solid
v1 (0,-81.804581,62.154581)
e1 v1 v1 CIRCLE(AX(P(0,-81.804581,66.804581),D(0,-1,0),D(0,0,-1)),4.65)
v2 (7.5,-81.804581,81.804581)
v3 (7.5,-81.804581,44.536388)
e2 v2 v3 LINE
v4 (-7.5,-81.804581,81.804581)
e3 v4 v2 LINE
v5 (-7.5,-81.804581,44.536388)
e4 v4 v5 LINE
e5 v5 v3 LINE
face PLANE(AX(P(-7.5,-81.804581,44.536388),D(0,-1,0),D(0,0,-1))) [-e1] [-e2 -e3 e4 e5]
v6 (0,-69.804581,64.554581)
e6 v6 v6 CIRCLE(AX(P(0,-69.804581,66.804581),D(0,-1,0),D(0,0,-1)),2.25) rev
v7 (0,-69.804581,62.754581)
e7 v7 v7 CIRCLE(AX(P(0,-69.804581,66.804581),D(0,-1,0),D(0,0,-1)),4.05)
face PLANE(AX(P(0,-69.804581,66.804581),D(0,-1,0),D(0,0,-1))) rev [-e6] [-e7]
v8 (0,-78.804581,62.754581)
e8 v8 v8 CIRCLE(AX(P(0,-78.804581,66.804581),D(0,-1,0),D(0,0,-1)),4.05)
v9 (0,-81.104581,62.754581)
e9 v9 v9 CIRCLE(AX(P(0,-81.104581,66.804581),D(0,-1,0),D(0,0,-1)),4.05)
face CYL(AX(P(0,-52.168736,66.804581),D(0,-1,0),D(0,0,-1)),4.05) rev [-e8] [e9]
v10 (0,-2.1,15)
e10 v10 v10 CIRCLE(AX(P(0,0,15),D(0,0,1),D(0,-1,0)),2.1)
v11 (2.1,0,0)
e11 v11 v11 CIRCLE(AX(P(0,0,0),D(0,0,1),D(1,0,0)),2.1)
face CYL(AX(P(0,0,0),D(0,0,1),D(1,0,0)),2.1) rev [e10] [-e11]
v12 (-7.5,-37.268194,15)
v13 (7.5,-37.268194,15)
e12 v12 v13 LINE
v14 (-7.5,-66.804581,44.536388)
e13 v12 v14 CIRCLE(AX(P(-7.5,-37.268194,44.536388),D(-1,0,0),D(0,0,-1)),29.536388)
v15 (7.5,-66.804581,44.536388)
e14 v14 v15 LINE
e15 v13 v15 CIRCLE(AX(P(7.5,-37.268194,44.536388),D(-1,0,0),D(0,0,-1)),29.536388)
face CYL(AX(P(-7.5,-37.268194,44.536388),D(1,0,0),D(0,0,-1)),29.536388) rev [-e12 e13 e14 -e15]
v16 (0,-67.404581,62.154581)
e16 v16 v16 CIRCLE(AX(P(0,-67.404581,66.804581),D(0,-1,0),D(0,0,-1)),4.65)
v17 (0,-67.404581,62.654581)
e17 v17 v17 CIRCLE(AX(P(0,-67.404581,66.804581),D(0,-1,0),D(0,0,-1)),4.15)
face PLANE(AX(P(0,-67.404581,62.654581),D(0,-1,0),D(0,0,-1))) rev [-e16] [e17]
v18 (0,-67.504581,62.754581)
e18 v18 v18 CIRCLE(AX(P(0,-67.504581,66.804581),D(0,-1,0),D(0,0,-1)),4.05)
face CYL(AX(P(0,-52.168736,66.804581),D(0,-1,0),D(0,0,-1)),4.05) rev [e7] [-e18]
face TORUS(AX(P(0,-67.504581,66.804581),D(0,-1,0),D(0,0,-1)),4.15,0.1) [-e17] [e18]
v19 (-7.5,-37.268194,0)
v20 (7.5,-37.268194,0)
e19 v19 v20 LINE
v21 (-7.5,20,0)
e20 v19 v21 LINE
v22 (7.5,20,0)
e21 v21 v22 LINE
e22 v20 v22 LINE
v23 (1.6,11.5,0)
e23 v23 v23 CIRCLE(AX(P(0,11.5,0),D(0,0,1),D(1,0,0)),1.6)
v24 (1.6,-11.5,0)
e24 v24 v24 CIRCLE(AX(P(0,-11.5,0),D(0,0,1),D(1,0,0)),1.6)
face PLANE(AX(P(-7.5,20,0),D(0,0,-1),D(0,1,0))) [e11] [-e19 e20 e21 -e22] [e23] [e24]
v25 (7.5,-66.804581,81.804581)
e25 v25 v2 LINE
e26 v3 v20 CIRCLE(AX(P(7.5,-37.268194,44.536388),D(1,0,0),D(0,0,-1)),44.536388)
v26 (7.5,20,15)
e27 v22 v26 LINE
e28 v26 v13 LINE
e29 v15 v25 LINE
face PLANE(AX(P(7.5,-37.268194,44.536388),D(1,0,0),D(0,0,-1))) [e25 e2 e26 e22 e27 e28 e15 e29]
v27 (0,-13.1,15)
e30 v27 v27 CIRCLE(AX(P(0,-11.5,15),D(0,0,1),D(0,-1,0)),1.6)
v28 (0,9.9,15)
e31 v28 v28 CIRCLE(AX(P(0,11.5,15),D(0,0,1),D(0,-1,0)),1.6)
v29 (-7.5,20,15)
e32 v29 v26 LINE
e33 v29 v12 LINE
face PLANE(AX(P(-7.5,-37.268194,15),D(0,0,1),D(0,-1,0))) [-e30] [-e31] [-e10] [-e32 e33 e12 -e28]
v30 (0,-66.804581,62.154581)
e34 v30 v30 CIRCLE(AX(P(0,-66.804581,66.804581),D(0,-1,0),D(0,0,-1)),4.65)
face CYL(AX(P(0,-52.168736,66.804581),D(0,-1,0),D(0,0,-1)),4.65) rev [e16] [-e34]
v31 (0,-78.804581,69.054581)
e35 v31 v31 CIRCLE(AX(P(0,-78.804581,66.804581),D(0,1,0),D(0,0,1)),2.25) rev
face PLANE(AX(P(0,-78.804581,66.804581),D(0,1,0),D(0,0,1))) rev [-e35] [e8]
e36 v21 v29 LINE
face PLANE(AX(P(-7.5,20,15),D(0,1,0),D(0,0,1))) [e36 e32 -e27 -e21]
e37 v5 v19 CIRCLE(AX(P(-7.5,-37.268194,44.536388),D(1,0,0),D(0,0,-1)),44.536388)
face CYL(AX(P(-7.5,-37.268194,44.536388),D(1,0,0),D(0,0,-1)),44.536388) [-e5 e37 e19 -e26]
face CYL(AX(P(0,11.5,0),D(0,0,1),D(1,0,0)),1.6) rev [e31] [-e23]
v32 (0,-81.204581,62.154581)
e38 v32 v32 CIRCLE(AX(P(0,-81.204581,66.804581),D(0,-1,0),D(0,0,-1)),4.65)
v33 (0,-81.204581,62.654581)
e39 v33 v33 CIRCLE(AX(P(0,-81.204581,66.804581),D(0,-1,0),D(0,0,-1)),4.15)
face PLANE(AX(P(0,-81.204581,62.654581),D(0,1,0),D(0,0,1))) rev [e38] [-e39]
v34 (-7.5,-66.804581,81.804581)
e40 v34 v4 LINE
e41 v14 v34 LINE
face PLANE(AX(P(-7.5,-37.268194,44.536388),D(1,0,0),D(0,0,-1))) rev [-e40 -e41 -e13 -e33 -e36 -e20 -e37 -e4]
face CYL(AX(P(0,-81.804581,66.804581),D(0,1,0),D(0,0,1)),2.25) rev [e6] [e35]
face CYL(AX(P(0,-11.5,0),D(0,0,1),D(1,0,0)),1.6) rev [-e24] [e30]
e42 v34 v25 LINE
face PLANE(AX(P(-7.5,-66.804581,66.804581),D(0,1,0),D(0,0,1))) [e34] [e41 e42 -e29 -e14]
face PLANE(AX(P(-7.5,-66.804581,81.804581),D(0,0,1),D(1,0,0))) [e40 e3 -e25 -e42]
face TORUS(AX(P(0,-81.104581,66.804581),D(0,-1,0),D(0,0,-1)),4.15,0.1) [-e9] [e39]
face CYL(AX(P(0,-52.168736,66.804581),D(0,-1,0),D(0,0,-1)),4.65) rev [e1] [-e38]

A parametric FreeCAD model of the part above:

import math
import FreeCAD as App
import Part
import Sketcher
from FreeCAD import Vector

doc = App.newDocument("Part")
body = doc.addObject("PartDesign::Body", "Body")

# Sketch on YZ plane
sketch1 = body.newObject("Sketcher::SketchObject", "Sketch")
sketch1.AttachmentSupport = (doc.getObject("YZ_Plane"), [""])
sketch1.MapMode = "FlatFace"
sketch1.addGeometry([
    Part.LineSegment(Vector(20, 0, 0), Vector(20, 15, 0)),  # 0
    Part.LineSegment(Vector(20, 15, 0), Vector(-37, 15, 0)),  # 1
    Part.ArcOfCircle(Part.Circle(Vector(-37, 45, 0), Vector(0, 0, 1), 30), math.radians(180), math.radians(270)),  # 2
    Part.LineSegment(Vector(-67, 45, 0), Vector(-67, 82, 0)),  # 3
    Part.LineSegment(Vector(-67, 82, 0), Vector(-82, 82, 0)),  # 4
    Part.LineSegment(Vector(-82, 82, 0), Vector(-82, 45, 0)),  # 5
    Part.ArcOfCircle(Part.Circle(Vector(-37, 45, 0), Vector(0, 0, 1), 45), math.radians(180), math.radians(270)),  # 6
    Part.LineSegment(Vector(-37, 0, 0), Vector(20, 0, 0)),  # 7
], False)
sketch1.addConstraint([
    Sketcher.Constraint("Coincident", 0, 2, 1, 1),
    Sketcher.Constraint("Tangent", 1, 2, 2, 2),
    Sketcher.Constraint("Tangent", 2, 1, 3, 1),
    Sketcher.Constraint("Coincident", 3, 2, 4, 1),
    Sketcher.Constraint("Coincident", 4, 2, 5, 1),
    Sketcher.Constraint("Tangent", 5, 2, 6, 1),
    Sketcher.Constraint("Tangent", 6, 2, 7, 1),
    Sketcher.Constraint("Coincident", 7, 2, 0, 1),
    Sketcher.Constraint("Vertical", 0),
    Sketcher.Constraint("Horizontal", 1),
    Sketcher.Constraint("Vertical", 3),
    Sketcher.Constraint("Horizontal", 4),
    Sketcher.Constraint("Vertical", 5),
    Sketcher.Constraint("Horizontal", 7),
    Sketcher.Constraint("Coincident", 6, 3, 2, 3),
    Sketcher.Constraint("PointOnObject", 6, 2, -1),
    Sketcher.Constraint("DistanceX", 4, 2, 4, 1, 15.0),
    Sketcher.Constraint("DistanceX", -1, 1, 0, 2, 20.0),
    Sketcher.Constraint("Radius", 2, 29.536388),
    Sketcher.Constraint("DistanceX", 1, 2, 1, 1, 57.268194),
    Sketcher.Constraint("DistanceY", 3, 1, 3, 2, 37.268194),
])
pad1 = body.newObject("PartDesign::Pad", "Pad")
pad1.Profile = sketch1
pad1.Type = "TwoLengths"
pad1.Length = 7.5
pad1.Length2 = 7.5

# Sketch on XZ plane
sketch2 = body.newObject("Sketcher::SketchObject", "Sketch001")
sketch2.AttachmentSupport = (doc.getObject("XZ_Plane"), [""])
sketch2.MapMode = "FlatFace"
sketch2.AttachmentOffset = App.Placement(Vector(0, 0, 66.804581), App.Rotation())
sketch2.addGeometry(Part.Circle(Vector(0, 66.8, 0), Vector(0, 0, 1), 2.2), False)
sketch2.addConstraint([
    Sketcher.Constraint("PointOnObject", 0, 3, -2),
    Sketcher.Constraint("Diameter", 0, 4.5),
    Sketcher.Constraint("DistanceY", -1, 1, 0, 3, 66.804581),
])
pocket1 = body.newObject("PartDesign::Pocket", "Pocket")
pocket1.Profile = sketch2
pocket1.Type = "ThroughAll"
pocket1.Reversed = True

# Sketch on XY plane
sketch3 = body.newObject("Sketcher::SketchObject", "Sketch002")
sketch3.AttachmentSupport = (doc.getObject("XY_Plane"), [""])
sketch3.MapMode = "FlatFace"
sketch3.AttachmentOffset = App.Placement(Vector(0, 0, 15), App.Rotation())
sketch3.addGeometry([
    Part.Circle(Vector(0, 0, 0), Vector(0, 0, 1), 2.1),
    Part.Circle(Vector(0, 11.5, 0), Vector(0, 0, 1), 1.6),
    Part.Circle(Vector(0, -11.5, 0), Vector(0, 0, 1), 1.6),
], False)
sketch3.addConstraint([
    Sketcher.Constraint("Coincident", 0, 3, -1, 1),
    Sketcher.Constraint("Equal", 1, 2),
    Sketcher.Constraint("Symmetric", 1, 3, 2, 3, -1, 1),
    Sketcher.Constraint("PointOnObject", 1, 3, -2),
    Sketcher.Constraint("Diameter", 0, 4.2),
    Sketcher.Constraint("Diameter", 1, 3.2),
    Sketcher.Constraint("DistanceY", 2, 3, 1, 3, 23.0),
])
pocket2 = body.newObject("PartDesign::Pocket", "Pocket001")
pocket2.Profile = sketch3
pocket2.Type = "ThroughAll"
pocket2.Midplane = True

# Sketch on YZ plane
sketch4 = body.newObject("Sketcher::SketchObject", "Sketch003")
sketch4.AttachmentSupport = (doc.getObject("YZ_Plane"), [""])
sketch4.MapMode = "FlatFace"
sketch4.addGeometry([
    Part.LineSegment(Vector(-81.1, 62.75, 0), Vector(-78.8, 62.75, 0)),  # 0
    Part.LineSegment(Vector(-78.8, 62.75, 0), Vector(-78.8, 66.8, 0)),  # 1
    Part.LineSegment(Vector(-78.8, 66.8, 0), Vector(-81.8, 66.8, 0)),  # 2
    Part.LineSegment(Vector(-81.8, 66.8, 0), Vector(-81.8, 62.15, 0)),  # 3
    Part.LineSegment(Vector(-81.8, 62.15, 0), Vector(-81.2, 62.15, 0)),  # 4
    Part.LineSegment(Vector(-81.2, 62.15, 0), Vector(-81.2, 62.65, 0)),  # 5
    Part.ArcOfCircle(Part.Circle(Vector(-81.1, 62.65, 0), Vector(0, 0, 1), 0.1), math.radians(90), math.radians(180)),  # 6
    Part.LineSegment(Vector(-69.8, 66.8, 0), Vector(-69.8, 62.75, 0)),  # 7
    Part.LineSegment(Vector(-69.8, 62.75, 0), Vector(-67.5, 62.75, 0)),  # 8
    Part.ArcOfCircle(Part.Circle(Vector(-67.5, 62.65, 0), Vector(0, 0, 1), 0.1), math.radians(0), math.radians(90)),  # 9
    Part.LineSegment(Vector(-67.4, 62.65, 0), Vector(-67.4, 62.15, 0)),  # 10
    Part.LineSegment(Vector(-67.4, 62.15, 0), Vector(-66.8, 62.15, 0)),  # 11
    Part.LineSegment(Vector(-66.8, 62.15, 0), Vector(-66.8, 66.8, 0)),  # 12
    Part.LineSegment(Vector(-66.8, 66.8, 0), Vector(-69.8, 66.8, 0)),  # 13
], False)
sketch4.addGeometry(Part.LineSegment(Vector(-81.8, 66.8, 0), Vector(-66.8, 66.8, 0)), True)  # axis
sketch4.addConstraint([
    Sketcher.Constraint("Coincident", 0, 2, 1, 1),
    Sketcher.Constraint("Coincident", 1, 2, 2, 1),
    Sketcher.Constraint("Coincident", 2, 2, 3, 1),
    Sketcher.Constraint("Coincident", 3, 2, 4, 1),
    Sketcher.Constraint("Coincident", 4, 2, 5, 1),
    Sketcher.Constraint("Tangent", 5, 2, 6, 2),
    Sketcher.Constraint("Tangent", 6, 1, 0, 1),
    Sketcher.Constraint("Coincident", 7, 2, 8, 1),
    Sketcher.Constraint("Tangent", 8, 2, 9, 2),
    Sketcher.Constraint("Tangent", 9, 1, 10, 1),
    Sketcher.Constraint("Coincident", 10, 2, 11, 1),
    Sketcher.Constraint("Coincident", 11, 2, 12, 1),
    Sketcher.Constraint("Coincident", 12, 2, 13, 1),
    Sketcher.Constraint("Coincident", 13, 2, 7, 1),
    Sketcher.Constraint("Horizontal", 0),
    Sketcher.Constraint("Vertical", 1),
    Sketcher.Constraint("Horizontal", 2),
    Sketcher.Constraint("Vertical", 3),
    Sketcher.Constraint("Horizontal", 4),
    Sketcher.Constraint("Vertical", 5),
    Sketcher.Constraint("Vertical", 7),
    Sketcher.Constraint("Horizontal", 8),
    Sketcher.Constraint("Vertical", 10),
    Sketcher.Constraint("Horizontal", 11),
    Sketcher.Constraint("Vertical", 12),
    Sketcher.Constraint("Horizontal", 13),
    Sketcher.Constraint("Horizontal", 14),
    Sketcher.Constraint("Coincident", 14, 1, 2, 2),
    Sketcher.Constraint("Coincident", 14, 2, 12, 2),
    Sketcher.Constraint("Equal", 6, 9),
    Sketcher.Constraint("Horizontal", 6, 3, 9, 3),
    Sketcher.Constraint("Horizontal", 4, 2, 10, 2),
    Sketcher.Constraint("Equal", 0, 8),
    Sketcher.Constraint("Equal", 4, 11),
    Sketcher.Constraint("Radius", 6, 0.1),
    Sketcher.Constraint("DistanceX", 2, 2, 2, 1, 3.0),
    Sketcher.Constraint("DistanceX", 14, 1, 14, 2, 15.0),
    Sketcher.Constraint("DistanceX", 0, 1, 0, 2, 2.3),
    Sketcher.Constraint("DistanceY", 5, 1, 5, 2, 0.5),
    Sketcher.Constraint("DistanceY", 1, 1, 1, 2, 4.05),
    Sketcher.Constraint("DistanceX", 6, 3, -1, 1, 81.104581),
    Sketcher.Constraint("DistanceY", -1, 1, 6, 3, 62.654581),
])
groove = body.newObject("PartDesign::Groove", "Groove")
groove.Profile = sketch4
groove.ReferenceAxis = (sketch4, ["Axis0"])
groove.Angle = 360

doc.recompute()
